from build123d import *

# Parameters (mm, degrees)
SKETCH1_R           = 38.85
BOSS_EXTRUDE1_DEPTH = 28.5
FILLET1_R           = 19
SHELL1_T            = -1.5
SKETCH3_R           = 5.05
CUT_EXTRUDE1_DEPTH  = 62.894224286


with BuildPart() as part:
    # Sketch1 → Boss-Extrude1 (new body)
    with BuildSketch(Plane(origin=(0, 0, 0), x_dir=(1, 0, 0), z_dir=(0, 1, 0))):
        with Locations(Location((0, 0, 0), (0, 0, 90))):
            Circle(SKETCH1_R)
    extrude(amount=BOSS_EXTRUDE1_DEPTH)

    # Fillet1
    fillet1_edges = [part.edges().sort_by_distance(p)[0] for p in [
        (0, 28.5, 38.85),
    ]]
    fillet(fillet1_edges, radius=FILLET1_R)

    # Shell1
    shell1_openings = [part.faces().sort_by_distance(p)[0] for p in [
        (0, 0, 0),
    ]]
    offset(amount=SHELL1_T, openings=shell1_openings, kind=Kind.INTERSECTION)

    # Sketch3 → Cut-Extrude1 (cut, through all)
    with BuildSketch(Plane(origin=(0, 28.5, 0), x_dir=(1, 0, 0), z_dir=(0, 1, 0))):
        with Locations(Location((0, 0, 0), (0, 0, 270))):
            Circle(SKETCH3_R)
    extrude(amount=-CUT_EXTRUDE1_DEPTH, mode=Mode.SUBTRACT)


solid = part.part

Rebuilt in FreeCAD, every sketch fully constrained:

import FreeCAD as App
import Part
import Sketcher
from FreeCAD import Vector


def edges_at(feature, points):
    """Names of the edges that pass closest to the given points."""
    edges = feature.Shape.Edges
    near = lambda p: min(range(len(edges)), key=lambda i: edges[i].distToShape(Part.Vertex(*p))[0])
    return sorted({f"Edge{near(p) + 1}" for p in points})


def faces_at(feature, points):
    """Names of the faces that lie closest to the given points."""
    faces = feature.Shape.Faces
    near = lambda p: min(range(len(faces)), key=lambda i: faces[i].distToShape(Part.Vertex(*p))[0])
    return sorted({f"Face{near(p) + 1}" for p in points})

doc = App.newDocument("Part")
params = doc.addObject("Spreadsheet::Sheet", "Params")
for row, (alias, value) in enumerate([
    ("sketch1_diameter", "77.7 mm"),
    ("pad1_length", "28.5 mm"),
    ("fillet_radius", "19 mm"),
    ("thickness_wall", "1.5 mm"),
    ("sketch2_diameter", "10.1 mm"),
], start=1):
    params.set(f"A{row}", alias)
    params.set(f"B{row}", "=" + value)
    params.setAlias(f"B{row}", alias)

body = doc.addObject("PartDesign::Body", "Body")

# Sketch on XZ plane
sketch1 = body.newObject("Sketcher::SketchObject", "Sketch")
sketch1.AttachmentSupport = (doc.getObject("XZ_Plane"), [""])
sketch1.MapMode = "FlatFace"
sketch1.addGeometry(Part.Circle(Vector(0, 0, 0), Vector(0, 0, 1), 39), False)
sketch1.addConstraint([
    Sketcher.Constraint("Coincident", 0, 3, -1, 1),
    Sketcher.Constraint("Diameter", 0, 77.7),
])
sketch1.setExpression("Constraints[1]", "Params.sketch1_diameter")
pad1 = body.newObject("PartDesign::Pad", "Pad")
pad1.Profile = sketch1
pad1.setExpression("Length", "Params.pad1_length")
pad1.Reversed = True
doc.recompute()

fillet = body.newObject("PartDesign::Fillet", "Fillet")
fillet.Base = (pad1, edges_at(pad1, [(0, 28.5, 38.85)]))
fillet.setExpression("Radius", "Params.fillet_radius")
doc.recompute()

thickness = body.newObject("PartDesign::Thickness", "Thickness")
thickness.Base = (fillet, faces_at(fillet, [(0, 0, 0)]))
thickness.setExpression("Value", "Params.thickness_wall")
thickness.Reversed = True
thickness.Join = "Intersection"

# Sketch on XZ plane
sketch2 = body.newObject("Sketcher::SketchObject", "Sketch001")
sketch2.AttachmentSupport = (doc.getObject("XZ_Plane"), [""])
sketch2.MapMode = "FlatFace"
sketch2.AttachmentOffset = App.Placement(Vector(0, 0, -28.5), App.Rotation())
sketch2.addGeometry(Part.Circle(Vector(0, 0, 0), Vector(0, 0, 1), 5), False)
sketch2.addConstraint([
    Sketcher.Constraint("Coincident", 0, 3, -1, 1),
    Sketcher.Constraint("Diameter", 0, 10.1),
])
sketch2.setExpression("Constraints[1]", "Params.sketch2_diameter")
pocket1 = body.newObject("PartDesign::Pocket", "Pocket")
pocket1.Profile = sketch2
pocket1.Type = "ThroughAll"
pocket1.Reversed = True

doc.recompute()
